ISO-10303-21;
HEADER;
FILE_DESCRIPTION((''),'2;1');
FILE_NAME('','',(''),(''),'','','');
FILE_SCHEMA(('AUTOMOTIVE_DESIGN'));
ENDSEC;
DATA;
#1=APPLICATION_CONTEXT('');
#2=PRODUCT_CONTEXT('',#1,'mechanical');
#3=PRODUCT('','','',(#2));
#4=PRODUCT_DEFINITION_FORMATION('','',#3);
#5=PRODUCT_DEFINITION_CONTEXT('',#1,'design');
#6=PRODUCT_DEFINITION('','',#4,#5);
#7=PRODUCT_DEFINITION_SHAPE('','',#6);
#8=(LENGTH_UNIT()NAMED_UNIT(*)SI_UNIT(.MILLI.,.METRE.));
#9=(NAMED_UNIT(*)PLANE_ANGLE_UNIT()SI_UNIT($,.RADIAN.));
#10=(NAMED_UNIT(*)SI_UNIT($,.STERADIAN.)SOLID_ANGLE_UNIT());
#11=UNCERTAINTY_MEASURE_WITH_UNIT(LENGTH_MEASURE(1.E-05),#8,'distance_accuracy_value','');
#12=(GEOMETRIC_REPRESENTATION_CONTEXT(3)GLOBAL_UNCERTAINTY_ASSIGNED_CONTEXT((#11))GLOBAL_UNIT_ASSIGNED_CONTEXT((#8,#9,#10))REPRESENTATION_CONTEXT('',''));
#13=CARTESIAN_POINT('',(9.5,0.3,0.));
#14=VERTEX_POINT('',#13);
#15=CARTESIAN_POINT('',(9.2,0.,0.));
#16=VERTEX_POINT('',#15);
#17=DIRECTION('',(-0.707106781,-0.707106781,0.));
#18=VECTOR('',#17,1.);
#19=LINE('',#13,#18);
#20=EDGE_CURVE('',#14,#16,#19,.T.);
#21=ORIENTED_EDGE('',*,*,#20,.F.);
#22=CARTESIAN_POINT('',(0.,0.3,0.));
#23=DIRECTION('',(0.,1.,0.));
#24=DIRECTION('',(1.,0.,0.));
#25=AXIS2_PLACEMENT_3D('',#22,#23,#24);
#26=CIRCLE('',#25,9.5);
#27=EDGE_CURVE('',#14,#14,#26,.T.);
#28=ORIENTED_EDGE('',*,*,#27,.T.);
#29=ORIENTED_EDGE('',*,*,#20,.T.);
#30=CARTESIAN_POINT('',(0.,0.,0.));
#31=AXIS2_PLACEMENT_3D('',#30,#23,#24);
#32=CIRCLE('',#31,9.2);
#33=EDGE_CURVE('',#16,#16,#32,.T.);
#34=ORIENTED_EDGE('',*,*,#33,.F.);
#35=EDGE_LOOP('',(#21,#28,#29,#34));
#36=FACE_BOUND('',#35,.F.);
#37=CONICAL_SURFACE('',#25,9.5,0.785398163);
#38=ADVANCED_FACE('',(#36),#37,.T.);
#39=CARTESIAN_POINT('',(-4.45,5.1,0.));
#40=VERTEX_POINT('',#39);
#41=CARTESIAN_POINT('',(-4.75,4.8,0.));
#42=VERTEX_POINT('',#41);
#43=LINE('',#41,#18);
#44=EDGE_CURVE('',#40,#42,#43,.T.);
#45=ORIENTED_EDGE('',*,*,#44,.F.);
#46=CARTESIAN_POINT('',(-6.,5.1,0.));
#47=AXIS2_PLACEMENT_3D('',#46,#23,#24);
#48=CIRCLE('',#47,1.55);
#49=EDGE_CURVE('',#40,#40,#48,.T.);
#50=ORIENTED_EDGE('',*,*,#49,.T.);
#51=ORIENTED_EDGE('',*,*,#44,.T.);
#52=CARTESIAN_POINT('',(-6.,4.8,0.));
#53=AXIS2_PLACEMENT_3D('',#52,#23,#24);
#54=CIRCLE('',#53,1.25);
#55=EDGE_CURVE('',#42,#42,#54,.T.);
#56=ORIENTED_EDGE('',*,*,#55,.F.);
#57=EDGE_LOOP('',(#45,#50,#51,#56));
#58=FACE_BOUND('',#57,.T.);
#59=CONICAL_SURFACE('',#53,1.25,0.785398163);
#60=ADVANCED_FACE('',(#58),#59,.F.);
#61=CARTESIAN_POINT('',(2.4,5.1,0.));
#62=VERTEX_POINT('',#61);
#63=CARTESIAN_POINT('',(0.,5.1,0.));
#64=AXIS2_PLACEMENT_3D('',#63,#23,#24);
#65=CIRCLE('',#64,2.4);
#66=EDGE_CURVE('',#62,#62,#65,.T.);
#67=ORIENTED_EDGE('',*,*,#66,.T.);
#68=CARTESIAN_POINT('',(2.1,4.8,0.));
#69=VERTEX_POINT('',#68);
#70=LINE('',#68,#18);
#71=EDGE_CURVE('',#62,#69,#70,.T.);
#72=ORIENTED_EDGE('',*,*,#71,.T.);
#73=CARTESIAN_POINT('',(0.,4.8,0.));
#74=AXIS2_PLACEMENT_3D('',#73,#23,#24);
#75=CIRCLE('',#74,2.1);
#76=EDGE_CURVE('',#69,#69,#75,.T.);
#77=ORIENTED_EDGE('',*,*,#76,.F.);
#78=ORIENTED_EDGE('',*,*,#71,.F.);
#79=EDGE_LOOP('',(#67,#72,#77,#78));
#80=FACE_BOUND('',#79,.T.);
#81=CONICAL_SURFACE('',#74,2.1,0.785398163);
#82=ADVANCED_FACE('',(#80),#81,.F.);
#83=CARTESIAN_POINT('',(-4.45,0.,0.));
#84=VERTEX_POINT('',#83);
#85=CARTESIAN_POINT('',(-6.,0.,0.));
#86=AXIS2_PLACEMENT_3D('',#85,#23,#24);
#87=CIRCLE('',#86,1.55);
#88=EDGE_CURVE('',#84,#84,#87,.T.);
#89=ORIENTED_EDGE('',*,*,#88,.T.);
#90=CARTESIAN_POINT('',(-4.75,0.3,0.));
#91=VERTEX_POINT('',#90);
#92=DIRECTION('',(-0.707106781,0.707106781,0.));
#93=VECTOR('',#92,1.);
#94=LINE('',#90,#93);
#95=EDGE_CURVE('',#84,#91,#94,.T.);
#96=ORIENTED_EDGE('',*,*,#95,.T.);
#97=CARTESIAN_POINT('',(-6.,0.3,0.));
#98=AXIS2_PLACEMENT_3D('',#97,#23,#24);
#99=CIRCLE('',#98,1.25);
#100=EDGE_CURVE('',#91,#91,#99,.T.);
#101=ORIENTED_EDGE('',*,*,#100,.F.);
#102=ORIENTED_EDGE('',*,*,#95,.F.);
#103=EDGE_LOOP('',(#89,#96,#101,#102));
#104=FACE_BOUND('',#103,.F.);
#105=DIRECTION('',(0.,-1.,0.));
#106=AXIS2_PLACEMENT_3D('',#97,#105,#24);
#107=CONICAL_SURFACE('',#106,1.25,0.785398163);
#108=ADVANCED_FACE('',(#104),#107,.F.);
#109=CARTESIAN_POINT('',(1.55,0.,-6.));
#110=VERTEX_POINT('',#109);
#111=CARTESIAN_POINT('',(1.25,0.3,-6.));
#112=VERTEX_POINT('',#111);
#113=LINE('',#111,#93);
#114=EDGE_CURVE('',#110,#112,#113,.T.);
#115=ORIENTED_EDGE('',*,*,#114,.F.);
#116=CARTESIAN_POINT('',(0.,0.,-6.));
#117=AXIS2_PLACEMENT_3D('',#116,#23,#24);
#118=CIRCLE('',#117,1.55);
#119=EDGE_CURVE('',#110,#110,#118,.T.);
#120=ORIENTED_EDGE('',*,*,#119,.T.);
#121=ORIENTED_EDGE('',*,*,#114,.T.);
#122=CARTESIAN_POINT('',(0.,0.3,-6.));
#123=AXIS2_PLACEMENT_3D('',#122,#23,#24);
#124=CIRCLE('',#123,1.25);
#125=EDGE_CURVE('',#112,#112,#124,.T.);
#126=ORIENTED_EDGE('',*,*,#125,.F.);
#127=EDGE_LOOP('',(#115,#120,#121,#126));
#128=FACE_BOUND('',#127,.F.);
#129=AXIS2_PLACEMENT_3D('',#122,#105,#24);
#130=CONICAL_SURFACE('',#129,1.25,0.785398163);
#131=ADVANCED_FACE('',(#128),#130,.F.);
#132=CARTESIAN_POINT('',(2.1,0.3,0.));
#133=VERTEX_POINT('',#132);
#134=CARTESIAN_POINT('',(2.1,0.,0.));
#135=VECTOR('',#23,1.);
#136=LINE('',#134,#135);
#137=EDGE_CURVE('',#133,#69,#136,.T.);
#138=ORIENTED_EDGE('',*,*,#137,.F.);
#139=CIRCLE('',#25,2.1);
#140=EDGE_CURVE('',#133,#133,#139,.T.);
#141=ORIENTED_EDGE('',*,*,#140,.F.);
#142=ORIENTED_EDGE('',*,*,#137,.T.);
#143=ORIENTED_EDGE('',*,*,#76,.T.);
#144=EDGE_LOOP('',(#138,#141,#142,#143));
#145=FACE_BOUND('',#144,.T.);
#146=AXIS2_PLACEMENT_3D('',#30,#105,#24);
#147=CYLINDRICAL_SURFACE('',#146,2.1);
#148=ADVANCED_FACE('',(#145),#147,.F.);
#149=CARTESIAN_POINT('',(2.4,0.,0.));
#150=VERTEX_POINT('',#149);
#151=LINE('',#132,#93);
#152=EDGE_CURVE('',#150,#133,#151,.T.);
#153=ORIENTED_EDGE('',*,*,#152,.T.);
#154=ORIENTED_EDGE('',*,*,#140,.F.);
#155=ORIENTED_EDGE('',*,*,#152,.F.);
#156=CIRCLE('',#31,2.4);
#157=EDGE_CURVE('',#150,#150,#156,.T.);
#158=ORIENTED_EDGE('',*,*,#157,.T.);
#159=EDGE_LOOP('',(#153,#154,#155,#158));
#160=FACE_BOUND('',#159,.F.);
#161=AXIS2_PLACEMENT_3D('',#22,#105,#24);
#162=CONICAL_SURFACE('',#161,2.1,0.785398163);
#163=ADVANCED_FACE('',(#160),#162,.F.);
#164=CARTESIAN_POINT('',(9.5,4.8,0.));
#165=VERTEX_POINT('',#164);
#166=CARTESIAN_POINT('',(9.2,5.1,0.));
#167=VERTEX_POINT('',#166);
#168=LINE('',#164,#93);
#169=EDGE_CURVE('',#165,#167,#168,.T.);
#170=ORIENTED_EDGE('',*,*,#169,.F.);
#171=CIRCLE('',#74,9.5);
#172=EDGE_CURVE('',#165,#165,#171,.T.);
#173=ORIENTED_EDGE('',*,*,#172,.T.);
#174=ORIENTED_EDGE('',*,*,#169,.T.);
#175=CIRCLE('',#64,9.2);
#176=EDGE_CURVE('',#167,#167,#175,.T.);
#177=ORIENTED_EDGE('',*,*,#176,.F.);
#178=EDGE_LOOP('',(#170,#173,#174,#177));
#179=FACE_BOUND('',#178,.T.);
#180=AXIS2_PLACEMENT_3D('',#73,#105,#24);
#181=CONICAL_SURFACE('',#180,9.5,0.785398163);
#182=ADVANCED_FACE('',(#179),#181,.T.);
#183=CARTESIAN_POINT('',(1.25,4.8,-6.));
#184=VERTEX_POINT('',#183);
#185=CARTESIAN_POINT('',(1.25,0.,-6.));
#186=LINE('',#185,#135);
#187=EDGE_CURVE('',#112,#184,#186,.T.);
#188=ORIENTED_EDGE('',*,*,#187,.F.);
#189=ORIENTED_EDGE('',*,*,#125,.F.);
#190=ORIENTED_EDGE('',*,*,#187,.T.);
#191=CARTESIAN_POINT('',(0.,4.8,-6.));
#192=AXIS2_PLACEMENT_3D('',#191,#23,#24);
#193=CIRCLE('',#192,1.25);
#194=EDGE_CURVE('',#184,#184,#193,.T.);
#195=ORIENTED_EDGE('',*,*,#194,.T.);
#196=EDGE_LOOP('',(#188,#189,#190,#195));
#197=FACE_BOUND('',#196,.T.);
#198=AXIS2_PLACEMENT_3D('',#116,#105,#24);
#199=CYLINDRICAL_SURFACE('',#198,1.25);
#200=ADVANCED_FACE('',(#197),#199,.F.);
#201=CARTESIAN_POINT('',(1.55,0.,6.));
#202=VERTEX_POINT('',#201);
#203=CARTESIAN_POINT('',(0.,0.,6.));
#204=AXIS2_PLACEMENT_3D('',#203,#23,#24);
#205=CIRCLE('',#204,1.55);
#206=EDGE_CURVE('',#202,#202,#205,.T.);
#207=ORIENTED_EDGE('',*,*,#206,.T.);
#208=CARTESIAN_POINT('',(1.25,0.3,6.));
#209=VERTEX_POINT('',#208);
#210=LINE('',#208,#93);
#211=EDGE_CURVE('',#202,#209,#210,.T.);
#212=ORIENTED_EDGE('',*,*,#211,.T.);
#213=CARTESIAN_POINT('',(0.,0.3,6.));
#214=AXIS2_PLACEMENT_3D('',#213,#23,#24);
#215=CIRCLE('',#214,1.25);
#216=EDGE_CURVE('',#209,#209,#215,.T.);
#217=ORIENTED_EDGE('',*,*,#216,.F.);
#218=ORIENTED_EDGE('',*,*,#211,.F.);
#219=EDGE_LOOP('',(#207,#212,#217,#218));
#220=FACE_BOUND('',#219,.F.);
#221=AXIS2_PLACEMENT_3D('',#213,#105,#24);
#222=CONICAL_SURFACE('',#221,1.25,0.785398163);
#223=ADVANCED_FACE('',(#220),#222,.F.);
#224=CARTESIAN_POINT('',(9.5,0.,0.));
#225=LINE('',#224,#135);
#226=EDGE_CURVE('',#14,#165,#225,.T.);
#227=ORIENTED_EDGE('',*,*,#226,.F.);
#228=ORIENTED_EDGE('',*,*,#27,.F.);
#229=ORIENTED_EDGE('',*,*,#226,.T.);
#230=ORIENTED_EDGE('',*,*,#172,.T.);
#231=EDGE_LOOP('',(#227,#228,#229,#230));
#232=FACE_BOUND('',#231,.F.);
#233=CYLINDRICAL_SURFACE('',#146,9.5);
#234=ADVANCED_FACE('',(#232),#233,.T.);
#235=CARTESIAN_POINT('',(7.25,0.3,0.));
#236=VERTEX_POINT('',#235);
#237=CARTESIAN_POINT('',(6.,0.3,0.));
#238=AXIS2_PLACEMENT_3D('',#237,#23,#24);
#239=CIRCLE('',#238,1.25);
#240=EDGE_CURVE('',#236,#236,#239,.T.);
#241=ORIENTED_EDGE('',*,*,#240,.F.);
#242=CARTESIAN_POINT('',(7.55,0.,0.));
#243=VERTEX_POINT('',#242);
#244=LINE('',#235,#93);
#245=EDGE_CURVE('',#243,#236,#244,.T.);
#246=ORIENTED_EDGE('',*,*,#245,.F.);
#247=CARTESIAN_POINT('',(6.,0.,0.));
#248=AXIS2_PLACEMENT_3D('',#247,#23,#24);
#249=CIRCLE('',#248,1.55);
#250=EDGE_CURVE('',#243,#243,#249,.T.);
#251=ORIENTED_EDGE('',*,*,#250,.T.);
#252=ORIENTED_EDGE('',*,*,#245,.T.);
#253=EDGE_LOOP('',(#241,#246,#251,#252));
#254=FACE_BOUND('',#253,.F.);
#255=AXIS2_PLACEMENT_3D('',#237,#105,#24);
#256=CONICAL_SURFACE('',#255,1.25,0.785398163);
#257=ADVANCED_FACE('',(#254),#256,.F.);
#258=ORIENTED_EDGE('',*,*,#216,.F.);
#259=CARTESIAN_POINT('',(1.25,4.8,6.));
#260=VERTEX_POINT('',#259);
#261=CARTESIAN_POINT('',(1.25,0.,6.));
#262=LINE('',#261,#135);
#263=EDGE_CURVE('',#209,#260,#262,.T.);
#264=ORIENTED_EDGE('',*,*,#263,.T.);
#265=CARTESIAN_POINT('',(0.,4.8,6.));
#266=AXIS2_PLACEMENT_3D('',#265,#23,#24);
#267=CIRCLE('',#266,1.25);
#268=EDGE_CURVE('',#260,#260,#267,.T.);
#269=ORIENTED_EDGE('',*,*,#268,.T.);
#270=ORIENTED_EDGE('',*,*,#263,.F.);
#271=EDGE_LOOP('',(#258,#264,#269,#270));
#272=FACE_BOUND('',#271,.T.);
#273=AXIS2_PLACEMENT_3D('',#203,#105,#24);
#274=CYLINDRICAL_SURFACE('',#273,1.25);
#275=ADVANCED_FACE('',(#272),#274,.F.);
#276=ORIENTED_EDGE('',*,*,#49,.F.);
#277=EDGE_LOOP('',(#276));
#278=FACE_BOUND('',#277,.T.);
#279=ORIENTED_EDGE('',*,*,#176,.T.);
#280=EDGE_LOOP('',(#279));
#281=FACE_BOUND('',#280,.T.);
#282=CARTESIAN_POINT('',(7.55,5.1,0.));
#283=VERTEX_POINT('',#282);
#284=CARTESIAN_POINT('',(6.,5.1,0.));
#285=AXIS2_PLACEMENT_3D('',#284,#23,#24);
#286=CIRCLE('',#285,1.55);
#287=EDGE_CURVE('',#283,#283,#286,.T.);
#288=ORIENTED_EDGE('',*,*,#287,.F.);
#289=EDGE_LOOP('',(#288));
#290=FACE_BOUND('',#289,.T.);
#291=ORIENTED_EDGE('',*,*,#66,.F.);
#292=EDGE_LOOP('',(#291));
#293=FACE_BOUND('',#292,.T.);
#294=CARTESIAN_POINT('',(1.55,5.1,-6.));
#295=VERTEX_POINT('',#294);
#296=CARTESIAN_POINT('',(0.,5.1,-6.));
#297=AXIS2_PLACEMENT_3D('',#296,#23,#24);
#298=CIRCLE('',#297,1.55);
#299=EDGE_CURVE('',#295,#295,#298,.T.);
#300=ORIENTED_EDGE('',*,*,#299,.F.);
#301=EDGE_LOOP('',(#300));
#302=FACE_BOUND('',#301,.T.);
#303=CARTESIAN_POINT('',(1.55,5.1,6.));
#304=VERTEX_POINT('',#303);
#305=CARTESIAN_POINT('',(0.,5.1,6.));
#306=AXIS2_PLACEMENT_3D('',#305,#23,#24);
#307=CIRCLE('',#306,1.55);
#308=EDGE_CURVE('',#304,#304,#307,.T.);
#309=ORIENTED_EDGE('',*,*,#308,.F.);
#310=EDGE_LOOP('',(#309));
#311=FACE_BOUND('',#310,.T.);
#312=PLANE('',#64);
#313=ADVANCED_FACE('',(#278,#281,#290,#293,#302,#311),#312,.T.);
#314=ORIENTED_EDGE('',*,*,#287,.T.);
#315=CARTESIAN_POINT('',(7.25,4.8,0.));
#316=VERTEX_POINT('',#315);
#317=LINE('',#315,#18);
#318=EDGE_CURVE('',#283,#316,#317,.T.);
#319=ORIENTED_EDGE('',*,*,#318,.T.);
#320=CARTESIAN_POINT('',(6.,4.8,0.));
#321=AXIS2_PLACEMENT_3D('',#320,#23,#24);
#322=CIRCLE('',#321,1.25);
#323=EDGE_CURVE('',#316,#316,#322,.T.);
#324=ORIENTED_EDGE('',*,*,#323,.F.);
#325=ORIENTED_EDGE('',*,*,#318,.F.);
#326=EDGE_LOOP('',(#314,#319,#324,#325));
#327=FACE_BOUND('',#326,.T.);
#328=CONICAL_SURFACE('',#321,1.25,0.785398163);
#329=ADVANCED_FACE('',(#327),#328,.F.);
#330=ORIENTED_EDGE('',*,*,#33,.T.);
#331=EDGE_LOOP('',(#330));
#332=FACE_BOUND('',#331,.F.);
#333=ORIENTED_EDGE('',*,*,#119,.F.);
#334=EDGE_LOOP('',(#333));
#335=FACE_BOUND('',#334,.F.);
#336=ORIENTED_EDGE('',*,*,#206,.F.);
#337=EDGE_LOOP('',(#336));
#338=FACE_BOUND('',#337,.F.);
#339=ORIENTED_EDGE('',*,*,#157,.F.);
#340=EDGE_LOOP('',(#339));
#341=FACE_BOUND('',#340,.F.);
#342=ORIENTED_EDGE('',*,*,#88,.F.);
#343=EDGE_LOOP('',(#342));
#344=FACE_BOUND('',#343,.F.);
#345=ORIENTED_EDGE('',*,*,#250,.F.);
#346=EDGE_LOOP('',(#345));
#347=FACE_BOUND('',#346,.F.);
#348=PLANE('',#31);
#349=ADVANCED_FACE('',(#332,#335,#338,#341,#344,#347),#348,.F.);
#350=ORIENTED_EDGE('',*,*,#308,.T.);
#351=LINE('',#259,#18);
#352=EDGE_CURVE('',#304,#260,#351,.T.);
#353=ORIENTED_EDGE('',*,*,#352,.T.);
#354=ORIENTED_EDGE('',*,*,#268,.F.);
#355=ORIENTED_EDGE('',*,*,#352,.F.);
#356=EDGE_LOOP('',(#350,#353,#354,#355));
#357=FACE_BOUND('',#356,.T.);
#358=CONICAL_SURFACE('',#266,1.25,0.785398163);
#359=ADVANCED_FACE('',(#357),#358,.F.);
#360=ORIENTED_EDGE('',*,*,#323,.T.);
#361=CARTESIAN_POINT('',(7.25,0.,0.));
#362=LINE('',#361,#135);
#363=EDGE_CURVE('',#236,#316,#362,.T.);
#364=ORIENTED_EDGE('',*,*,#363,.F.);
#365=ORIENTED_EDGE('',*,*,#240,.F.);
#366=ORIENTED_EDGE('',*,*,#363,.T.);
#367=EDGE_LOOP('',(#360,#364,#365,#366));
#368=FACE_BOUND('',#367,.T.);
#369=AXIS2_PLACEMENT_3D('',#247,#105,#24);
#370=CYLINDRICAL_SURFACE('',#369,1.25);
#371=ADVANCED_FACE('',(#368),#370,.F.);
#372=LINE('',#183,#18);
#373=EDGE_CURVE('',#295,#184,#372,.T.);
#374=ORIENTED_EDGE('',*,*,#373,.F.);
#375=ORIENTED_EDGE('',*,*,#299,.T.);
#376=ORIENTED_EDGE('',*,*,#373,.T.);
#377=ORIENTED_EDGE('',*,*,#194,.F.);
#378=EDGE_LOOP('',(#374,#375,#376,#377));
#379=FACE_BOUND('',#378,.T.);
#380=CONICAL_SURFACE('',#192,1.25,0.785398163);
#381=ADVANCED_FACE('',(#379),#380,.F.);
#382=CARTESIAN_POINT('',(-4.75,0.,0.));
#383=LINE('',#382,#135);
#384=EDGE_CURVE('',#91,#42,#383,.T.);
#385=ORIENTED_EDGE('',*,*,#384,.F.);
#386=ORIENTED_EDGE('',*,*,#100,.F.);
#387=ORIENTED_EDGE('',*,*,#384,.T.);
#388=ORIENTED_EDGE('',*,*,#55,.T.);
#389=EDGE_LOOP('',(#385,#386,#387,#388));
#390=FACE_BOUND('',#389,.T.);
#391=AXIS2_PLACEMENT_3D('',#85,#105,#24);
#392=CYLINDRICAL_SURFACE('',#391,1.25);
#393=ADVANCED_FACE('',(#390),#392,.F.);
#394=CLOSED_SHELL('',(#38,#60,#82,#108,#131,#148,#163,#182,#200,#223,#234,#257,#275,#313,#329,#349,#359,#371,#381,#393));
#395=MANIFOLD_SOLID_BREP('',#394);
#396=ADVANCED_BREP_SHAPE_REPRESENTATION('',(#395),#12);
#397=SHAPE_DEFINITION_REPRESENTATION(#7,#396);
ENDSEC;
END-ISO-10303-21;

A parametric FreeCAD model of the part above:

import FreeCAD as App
import Part
import Sketcher

V = App.Vector


def edges_at(feature, points):
    """Names of the edges that pass closest to the given points."""
    edges = feature.Shape.Edges
    near = lambda p: min(range(len(edges)), key=lambda i: edges[i].distToShape(Part.Vertex(*p))[0])
    return sorted({f"Edge{near(p) + 1}" for p in points})

doc = App.newDocument("Part")
body = doc.addObject("PartDesign::Body", "Body")

sketch1 = body.newObject("Sketcher::SketchObject", "Sketch")
sketch1.AttachmentSupport = (doc.getObject("XZ_Plane"), [""])
sketch1.MapMode = "FlatFace"
sketch1.addGeometry(Part.Circle(V(0, 0, 0), V(0, 0, 1), 9.5), False)
sketch1.addGeometry(Part.Circle(V(0, 6, 0), V(0, 0, 1), 1.2), False)
sketch1.addGeometry(Part.Circle(V(-6, 0, 0), V(0, 0, 1), 1.2), False)
sketch1.addGeometry(Part.Circle(V(0, 0, 0), V(0, 0, 1), 2.1), False)
sketch1.addGeometry(Part.Circle(V(6, 0, 0), V(0, 0, 1), 1.2), False)
sketch1.addGeometry(Part.Circle(V(0, -6, 0), V(0, 0, 1), 1.2), False)
sketch1.addConstraint(Sketcher.Constraint("Coincident", 0, 3, -1, 1))
sketch1.addConstraint(Sketcher.Constraint("Coincident", 3, 3, -1, 1))
sketch1.addConstraint(Sketcher.Constraint("Equal", 1, 2))
sketch1.addConstraint(Sketcher.Constraint("Equal", 2, 4))
sketch1.addConstraint(Sketcher.Constraint("Equal", 4, 5))
sketch1.addConstraint(Sketcher.Constraint("Symmetric", 2, 3, 4, 3, -1, 1))
sketch1.addConstraint(Sketcher.Constraint("Symmetric", 1, 3, 5, 3, -1, 1))
sketch1.addConstraint(Sketcher.Constraint("PointOnObject", 1, 3, -2))
sketch1.addConstraint(Sketcher.Constraint("PointOnObject", 2, 3, -1))
sketch1.addConstraint(Sketcher.Constraint("Diameter", 0, 19.0))
sketch1.addConstraint(Sketcher.Constraint("Diameter", 1, 2.5))
sketch1.addConstraint(Sketcher.Constraint("Diameter", 3, 4.2))
sketch1.addConstraint(Sketcher.Constraint("DistanceY", -1, 1, 1, 3, 6.0))
sketch1.addConstraint(Sketcher.Constraint("DistanceX", 2, 3, -1, 1, 6.0))
pad1 = body.newObject("PartDesign::Pad", "Pad")
pad1.Profile = sketch1
pad1.Length = 5.1
pad1.Reversed = True
doc.recompute()

chamfer = body.newObject("PartDesign::Chamfer", "Chamfer")
chamfer.Base = (pad1, edges_at(pad1, [(-8.857, 5.1, 3.435), (-8.857, 0, 3.435)]))
chamfer.Size = 0.3
doc.recompute()

chamfer2 = body.newObject("PartDesign::Chamfer", "Chamfer001")
chamfer2.Base = (chamfer, edges_at(chamfer, [
    (-1.958, 5.1, -0.759),
    (-1.165, 5.1, -6.452),
    (-7.165, 5.1, -0.452),
    (-1.165, 5.1, 5.548),
    (4.835, 5.1, -0.452),
    (-1.165, 0, 5.548),
    (-7.165, 0, -0.452),
    (-1.165, 0, -6.452),
    (-1.958, 0, -0.759),
    (4.835, 0, -0.452),
]))
chamfer2.Size = 0.3

doc.recompute()
